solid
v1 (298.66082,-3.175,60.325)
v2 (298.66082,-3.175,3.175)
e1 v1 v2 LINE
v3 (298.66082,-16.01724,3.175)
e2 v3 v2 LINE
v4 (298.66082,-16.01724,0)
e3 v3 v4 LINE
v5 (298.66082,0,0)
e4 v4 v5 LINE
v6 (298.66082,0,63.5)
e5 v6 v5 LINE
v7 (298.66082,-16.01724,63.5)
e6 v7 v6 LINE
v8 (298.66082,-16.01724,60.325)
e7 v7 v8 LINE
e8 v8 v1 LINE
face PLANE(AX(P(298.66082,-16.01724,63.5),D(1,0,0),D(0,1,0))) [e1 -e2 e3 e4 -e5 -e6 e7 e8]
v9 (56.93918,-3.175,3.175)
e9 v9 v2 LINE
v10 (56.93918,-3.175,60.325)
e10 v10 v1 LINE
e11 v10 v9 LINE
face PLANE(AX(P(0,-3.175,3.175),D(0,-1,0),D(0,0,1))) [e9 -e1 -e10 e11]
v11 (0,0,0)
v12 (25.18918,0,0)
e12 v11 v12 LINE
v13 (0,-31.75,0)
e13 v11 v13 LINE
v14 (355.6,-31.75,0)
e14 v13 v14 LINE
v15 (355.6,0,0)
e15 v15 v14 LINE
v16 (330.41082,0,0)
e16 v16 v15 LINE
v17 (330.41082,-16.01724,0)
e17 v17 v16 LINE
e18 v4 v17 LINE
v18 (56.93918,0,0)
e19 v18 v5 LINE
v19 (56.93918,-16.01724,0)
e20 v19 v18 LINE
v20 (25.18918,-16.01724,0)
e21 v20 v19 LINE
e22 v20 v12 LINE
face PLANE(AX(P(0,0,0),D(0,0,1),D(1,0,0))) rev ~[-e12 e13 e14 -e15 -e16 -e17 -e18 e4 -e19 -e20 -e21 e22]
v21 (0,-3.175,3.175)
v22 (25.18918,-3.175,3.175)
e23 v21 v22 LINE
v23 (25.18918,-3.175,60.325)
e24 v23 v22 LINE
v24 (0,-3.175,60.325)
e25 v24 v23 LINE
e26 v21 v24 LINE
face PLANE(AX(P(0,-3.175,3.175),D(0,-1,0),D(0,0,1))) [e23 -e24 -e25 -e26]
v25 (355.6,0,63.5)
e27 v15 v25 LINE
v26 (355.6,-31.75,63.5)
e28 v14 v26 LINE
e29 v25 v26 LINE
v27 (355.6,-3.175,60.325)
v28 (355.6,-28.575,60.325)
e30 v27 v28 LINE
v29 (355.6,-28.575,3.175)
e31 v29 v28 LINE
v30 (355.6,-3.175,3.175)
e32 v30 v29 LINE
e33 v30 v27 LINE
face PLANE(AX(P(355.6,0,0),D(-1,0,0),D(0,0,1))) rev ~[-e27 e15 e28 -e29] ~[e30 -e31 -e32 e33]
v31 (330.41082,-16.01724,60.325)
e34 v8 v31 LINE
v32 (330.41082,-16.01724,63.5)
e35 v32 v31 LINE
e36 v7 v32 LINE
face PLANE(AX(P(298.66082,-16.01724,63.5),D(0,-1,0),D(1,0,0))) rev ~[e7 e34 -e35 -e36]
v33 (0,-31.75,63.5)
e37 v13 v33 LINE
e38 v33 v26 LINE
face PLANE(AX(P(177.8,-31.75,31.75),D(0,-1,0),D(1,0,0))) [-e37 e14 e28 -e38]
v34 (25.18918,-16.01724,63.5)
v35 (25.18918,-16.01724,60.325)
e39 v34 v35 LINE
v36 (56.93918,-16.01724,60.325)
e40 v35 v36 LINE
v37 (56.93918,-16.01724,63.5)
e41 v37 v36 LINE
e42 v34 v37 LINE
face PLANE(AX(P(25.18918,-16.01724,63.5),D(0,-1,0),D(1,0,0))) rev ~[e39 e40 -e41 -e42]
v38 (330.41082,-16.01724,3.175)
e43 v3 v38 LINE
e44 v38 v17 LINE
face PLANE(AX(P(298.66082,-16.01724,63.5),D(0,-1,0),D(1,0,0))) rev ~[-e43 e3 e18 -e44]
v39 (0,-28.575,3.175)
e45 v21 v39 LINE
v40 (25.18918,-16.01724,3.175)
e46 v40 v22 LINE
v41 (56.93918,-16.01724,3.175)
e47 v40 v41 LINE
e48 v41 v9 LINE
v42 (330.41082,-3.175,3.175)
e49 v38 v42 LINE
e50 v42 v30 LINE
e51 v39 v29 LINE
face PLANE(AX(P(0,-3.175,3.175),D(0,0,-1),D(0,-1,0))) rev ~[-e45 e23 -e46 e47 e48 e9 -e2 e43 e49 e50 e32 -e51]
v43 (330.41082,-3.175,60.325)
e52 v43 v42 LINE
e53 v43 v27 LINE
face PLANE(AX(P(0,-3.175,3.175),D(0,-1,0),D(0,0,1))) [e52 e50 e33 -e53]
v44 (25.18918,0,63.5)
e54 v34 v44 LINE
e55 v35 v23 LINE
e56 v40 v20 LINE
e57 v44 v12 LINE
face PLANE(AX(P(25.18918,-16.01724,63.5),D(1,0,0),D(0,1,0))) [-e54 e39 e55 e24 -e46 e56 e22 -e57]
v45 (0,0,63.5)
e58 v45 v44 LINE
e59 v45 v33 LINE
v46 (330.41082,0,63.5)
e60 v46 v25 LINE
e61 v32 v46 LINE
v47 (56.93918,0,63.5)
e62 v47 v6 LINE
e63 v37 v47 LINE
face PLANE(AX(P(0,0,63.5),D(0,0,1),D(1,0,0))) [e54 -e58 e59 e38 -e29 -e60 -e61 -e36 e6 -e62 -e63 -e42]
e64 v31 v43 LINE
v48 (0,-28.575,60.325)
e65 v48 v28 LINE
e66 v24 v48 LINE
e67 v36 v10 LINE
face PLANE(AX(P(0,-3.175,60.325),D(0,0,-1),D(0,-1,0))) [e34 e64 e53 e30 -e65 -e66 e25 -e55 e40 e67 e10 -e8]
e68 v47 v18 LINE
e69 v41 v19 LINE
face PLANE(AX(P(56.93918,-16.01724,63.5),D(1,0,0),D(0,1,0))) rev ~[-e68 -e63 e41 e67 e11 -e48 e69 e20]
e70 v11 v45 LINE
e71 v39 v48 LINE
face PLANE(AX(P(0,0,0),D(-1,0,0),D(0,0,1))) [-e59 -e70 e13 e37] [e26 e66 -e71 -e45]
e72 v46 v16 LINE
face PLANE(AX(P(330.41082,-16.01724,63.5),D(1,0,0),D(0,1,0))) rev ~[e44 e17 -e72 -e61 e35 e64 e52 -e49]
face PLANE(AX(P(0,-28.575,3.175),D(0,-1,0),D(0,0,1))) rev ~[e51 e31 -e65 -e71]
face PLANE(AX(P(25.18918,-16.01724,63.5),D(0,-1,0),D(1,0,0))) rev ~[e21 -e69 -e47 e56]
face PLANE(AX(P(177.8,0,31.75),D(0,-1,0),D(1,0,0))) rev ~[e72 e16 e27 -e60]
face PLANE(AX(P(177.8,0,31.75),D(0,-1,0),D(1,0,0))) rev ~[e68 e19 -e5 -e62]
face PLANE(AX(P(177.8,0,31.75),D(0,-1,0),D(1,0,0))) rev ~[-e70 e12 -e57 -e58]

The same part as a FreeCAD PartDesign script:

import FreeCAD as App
import Part
import Sketcher
Q = App.Units.Quantity


def add_polygon(sketch, points):
    """Adds a closed chain of lines whose ends are joined by coincident constraints."""
    first, n = sketch.GeometryCount, len(points)
    for a, b in zip(points, points[1:] + points[:1]):
        sketch.addGeometry(Part.LineSegment(App.Vector(*a, 0), App.Vector(*b, 0)), False)
    for i in range(n):
        sketch.addConstraint(Sketcher.Constraint("Coincident", first + i, 2, first + (i + 1) % n, 1))

doc = App.newDocument("Part")
params = doc.addObject("Spreadsheet::Sheet", "Params")
for row, (alias, value) in enumerate([
    ("sketch1_width", "14 in"),
    ("sketch1_height", "2.5 in"),
    ("pad1_length", "1.25 in"),
    ("sketch2_width", "1.25 in"),
    ("sketch3_width", "1 in"),
    ("sketch3_height", "2.25 in"),
], start=1):
    params.set(f"A{row}", alias)
    params.set(f"B{row}", "=" + value)
    params.setAlias(f"B{row}", alias)

body = doc.addObject("PartDesign::Body", "Body")

sketch1 = body.newObject("Sketcher::SketchObject", "Sketch")
sketch1.AttachmentSupport = (doc.getObject("XZ_Plane"), [""])
sketch1.MapMode = "FlatFace"
add_polygon(sketch1, [(0, 64), (0, 0), (356, 0), (356, 64)])
sketch1.addConstraint(Sketcher.Constraint("Vertical", 0))
sketch1.addConstraint(Sketcher.Constraint("Horizontal", 1))
sketch1.addConstraint(Sketcher.Constraint("Vertical", 2))
sketch1.addConstraint(Sketcher.Constraint("Horizontal", 3))
sketch1.addConstraint(Sketcher.Constraint("Coincident", 0, 2, -1, 1))
sketch1.addConstraint(Sketcher.Constraint("DistanceX", 1, 1, 1, 2, Q("14 in")))
sketch1.addConstraint(Sketcher.Constraint("DistanceY", 0, 2, 0, 1, Q("2.5 in")))
sketch1.setExpression("Constraints[9]", "Params.sketch1_width")
sketch1.setExpression("Constraints[10]", "Params.sketch1_height")
pad1 = body.newObject("PartDesign::Pad", "Pad")
pad1.Profile = sketch1
pad1.setExpression("Length", "Params.pad1_length")

sketch2 = body.newObject("Sketcher::SketchObject", "Sketch001")
sketch2.AttachmentSupport = (doc.getObject("XY_Plane"), [""])
sketch2.MapMode = "FlatFace"
sketch2.AttachmentOffset = App.Placement(App.Vector(0, 0, 2.5 * 25.4), App.Rotation())
add_polygon(sketch2, [(25, 0), (25, -16), (57, -16), (57, 0)])
add_polygon(sketch2, [(299, 0), (299, -16), (330, -16), (330, 0)])
sketch2.addConstraint(Sketcher.Constraint("Vertical", 0))
sketch2.addConstraint(Sketcher.Constraint("Horizontal", 1))
sketch2.addConstraint(Sketcher.Constraint("Vertical", 2))
sketch2.addConstraint(Sketcher.Constraint("Horizontal", 3))
sketch2.addConstraint(Sketcher.Constraint("Vertical", 4))
sketch2.addConstraint(Sketcher.Constraint("Horizontal", 5))
sketch2.addConstraint(Sketcher.Constraint("Vertical", 6))
sketch2.addConstraint(Sketcher.Constraint("Horizontal", 7))
sketch2.addConstraint(Sketcher.Constraint("PointOnObject", 2, 2, -1))
sketch2.addConstraint(Sketcher.Constraint("PointOnObject", 6, 2, -1))
sketch2.addConstraint(Sketcher.Constraint("Horizontal", 1, 2, 4, 2))
sketch2.addConstraint(Sketcher.Constraint("Equal", 3, 5))
sketch2.addConstraint(Sketcher.Constraint("DistanceX", 1, 1, 1, 2, Q("1.25 in")))
sketch2.addConstraint(Sketcher.Constraint("DistanceY", 0, 2, 0, 1, Q("0.6306 in")))
sketch2.addConstraint(Sketcher.Constraint("DistanceX", -1, 1, 0, 2, Q("0.9917 in")))
sketch2.addConstraint(Sketcher.Constraint("DistanceX", -1, 1, 4, 2, Q("11.7583 in")))
sketch2.setExpression("Constraints[20]", "Params.sketch2_width")
pocket1 = body.newObject("PartDesign::Pocket", "Pocket")
pocket1.Profile = sketch2
pocket1.Type = "ThroughAll"

sketch3 = body.newObject("Sketcher::SketchObject", "Sketch002")
sketch3.AttachmentSupport = (doc.getObject("YZ_Plane"), [""])
sketch3.MapMode = "FlatFace"
add_polygon(sketch3, [(-3, 60), (-3, 3), (-29, 3), (-29, 60)])
sketch3.addConstraint(Sketcher.Constraint("Vertical", 0))
sketch3.addConstraint(Sketcher.Constraint("Horizontal", 1))
sketch3.addConstraint(Sketcher.Constraint("Vertical", 2))
sketch3.addConstraint(Sketcher.Constraint("Horizontal", 3))
sketch3.addConstraint(Sketcher.Constraint("DistanceX", 1, 2, 1, 1, Q("1 in")))
sketch3.addConstraint(Sketcher.Constraint("DistanceY", 0, 2, 0, 1, Q("2.25 in")))
sketch3.addConstraint(Sketcher.Constraint("DistanceX", 0, 2, -1, 1, Q("0.125 in")))
sketch3.addConstraint(Sketcher.Constraint("DistanceY", -1, 1, 0, 2, Q("0.125 in")))
sketch3.setExpression("Constraints[8]", "Params.sketch3_width")
sketch3.setExpression("Constraints[9]", "Params.sketch3_height")
pocket2 = body.newObject("PartDesign::Pocket", "Pocket001")
pocket2.Profile = sketch3
pocket2.Type = "ThroughAll"
pocket2.Reversed = True

doc.recompute()
